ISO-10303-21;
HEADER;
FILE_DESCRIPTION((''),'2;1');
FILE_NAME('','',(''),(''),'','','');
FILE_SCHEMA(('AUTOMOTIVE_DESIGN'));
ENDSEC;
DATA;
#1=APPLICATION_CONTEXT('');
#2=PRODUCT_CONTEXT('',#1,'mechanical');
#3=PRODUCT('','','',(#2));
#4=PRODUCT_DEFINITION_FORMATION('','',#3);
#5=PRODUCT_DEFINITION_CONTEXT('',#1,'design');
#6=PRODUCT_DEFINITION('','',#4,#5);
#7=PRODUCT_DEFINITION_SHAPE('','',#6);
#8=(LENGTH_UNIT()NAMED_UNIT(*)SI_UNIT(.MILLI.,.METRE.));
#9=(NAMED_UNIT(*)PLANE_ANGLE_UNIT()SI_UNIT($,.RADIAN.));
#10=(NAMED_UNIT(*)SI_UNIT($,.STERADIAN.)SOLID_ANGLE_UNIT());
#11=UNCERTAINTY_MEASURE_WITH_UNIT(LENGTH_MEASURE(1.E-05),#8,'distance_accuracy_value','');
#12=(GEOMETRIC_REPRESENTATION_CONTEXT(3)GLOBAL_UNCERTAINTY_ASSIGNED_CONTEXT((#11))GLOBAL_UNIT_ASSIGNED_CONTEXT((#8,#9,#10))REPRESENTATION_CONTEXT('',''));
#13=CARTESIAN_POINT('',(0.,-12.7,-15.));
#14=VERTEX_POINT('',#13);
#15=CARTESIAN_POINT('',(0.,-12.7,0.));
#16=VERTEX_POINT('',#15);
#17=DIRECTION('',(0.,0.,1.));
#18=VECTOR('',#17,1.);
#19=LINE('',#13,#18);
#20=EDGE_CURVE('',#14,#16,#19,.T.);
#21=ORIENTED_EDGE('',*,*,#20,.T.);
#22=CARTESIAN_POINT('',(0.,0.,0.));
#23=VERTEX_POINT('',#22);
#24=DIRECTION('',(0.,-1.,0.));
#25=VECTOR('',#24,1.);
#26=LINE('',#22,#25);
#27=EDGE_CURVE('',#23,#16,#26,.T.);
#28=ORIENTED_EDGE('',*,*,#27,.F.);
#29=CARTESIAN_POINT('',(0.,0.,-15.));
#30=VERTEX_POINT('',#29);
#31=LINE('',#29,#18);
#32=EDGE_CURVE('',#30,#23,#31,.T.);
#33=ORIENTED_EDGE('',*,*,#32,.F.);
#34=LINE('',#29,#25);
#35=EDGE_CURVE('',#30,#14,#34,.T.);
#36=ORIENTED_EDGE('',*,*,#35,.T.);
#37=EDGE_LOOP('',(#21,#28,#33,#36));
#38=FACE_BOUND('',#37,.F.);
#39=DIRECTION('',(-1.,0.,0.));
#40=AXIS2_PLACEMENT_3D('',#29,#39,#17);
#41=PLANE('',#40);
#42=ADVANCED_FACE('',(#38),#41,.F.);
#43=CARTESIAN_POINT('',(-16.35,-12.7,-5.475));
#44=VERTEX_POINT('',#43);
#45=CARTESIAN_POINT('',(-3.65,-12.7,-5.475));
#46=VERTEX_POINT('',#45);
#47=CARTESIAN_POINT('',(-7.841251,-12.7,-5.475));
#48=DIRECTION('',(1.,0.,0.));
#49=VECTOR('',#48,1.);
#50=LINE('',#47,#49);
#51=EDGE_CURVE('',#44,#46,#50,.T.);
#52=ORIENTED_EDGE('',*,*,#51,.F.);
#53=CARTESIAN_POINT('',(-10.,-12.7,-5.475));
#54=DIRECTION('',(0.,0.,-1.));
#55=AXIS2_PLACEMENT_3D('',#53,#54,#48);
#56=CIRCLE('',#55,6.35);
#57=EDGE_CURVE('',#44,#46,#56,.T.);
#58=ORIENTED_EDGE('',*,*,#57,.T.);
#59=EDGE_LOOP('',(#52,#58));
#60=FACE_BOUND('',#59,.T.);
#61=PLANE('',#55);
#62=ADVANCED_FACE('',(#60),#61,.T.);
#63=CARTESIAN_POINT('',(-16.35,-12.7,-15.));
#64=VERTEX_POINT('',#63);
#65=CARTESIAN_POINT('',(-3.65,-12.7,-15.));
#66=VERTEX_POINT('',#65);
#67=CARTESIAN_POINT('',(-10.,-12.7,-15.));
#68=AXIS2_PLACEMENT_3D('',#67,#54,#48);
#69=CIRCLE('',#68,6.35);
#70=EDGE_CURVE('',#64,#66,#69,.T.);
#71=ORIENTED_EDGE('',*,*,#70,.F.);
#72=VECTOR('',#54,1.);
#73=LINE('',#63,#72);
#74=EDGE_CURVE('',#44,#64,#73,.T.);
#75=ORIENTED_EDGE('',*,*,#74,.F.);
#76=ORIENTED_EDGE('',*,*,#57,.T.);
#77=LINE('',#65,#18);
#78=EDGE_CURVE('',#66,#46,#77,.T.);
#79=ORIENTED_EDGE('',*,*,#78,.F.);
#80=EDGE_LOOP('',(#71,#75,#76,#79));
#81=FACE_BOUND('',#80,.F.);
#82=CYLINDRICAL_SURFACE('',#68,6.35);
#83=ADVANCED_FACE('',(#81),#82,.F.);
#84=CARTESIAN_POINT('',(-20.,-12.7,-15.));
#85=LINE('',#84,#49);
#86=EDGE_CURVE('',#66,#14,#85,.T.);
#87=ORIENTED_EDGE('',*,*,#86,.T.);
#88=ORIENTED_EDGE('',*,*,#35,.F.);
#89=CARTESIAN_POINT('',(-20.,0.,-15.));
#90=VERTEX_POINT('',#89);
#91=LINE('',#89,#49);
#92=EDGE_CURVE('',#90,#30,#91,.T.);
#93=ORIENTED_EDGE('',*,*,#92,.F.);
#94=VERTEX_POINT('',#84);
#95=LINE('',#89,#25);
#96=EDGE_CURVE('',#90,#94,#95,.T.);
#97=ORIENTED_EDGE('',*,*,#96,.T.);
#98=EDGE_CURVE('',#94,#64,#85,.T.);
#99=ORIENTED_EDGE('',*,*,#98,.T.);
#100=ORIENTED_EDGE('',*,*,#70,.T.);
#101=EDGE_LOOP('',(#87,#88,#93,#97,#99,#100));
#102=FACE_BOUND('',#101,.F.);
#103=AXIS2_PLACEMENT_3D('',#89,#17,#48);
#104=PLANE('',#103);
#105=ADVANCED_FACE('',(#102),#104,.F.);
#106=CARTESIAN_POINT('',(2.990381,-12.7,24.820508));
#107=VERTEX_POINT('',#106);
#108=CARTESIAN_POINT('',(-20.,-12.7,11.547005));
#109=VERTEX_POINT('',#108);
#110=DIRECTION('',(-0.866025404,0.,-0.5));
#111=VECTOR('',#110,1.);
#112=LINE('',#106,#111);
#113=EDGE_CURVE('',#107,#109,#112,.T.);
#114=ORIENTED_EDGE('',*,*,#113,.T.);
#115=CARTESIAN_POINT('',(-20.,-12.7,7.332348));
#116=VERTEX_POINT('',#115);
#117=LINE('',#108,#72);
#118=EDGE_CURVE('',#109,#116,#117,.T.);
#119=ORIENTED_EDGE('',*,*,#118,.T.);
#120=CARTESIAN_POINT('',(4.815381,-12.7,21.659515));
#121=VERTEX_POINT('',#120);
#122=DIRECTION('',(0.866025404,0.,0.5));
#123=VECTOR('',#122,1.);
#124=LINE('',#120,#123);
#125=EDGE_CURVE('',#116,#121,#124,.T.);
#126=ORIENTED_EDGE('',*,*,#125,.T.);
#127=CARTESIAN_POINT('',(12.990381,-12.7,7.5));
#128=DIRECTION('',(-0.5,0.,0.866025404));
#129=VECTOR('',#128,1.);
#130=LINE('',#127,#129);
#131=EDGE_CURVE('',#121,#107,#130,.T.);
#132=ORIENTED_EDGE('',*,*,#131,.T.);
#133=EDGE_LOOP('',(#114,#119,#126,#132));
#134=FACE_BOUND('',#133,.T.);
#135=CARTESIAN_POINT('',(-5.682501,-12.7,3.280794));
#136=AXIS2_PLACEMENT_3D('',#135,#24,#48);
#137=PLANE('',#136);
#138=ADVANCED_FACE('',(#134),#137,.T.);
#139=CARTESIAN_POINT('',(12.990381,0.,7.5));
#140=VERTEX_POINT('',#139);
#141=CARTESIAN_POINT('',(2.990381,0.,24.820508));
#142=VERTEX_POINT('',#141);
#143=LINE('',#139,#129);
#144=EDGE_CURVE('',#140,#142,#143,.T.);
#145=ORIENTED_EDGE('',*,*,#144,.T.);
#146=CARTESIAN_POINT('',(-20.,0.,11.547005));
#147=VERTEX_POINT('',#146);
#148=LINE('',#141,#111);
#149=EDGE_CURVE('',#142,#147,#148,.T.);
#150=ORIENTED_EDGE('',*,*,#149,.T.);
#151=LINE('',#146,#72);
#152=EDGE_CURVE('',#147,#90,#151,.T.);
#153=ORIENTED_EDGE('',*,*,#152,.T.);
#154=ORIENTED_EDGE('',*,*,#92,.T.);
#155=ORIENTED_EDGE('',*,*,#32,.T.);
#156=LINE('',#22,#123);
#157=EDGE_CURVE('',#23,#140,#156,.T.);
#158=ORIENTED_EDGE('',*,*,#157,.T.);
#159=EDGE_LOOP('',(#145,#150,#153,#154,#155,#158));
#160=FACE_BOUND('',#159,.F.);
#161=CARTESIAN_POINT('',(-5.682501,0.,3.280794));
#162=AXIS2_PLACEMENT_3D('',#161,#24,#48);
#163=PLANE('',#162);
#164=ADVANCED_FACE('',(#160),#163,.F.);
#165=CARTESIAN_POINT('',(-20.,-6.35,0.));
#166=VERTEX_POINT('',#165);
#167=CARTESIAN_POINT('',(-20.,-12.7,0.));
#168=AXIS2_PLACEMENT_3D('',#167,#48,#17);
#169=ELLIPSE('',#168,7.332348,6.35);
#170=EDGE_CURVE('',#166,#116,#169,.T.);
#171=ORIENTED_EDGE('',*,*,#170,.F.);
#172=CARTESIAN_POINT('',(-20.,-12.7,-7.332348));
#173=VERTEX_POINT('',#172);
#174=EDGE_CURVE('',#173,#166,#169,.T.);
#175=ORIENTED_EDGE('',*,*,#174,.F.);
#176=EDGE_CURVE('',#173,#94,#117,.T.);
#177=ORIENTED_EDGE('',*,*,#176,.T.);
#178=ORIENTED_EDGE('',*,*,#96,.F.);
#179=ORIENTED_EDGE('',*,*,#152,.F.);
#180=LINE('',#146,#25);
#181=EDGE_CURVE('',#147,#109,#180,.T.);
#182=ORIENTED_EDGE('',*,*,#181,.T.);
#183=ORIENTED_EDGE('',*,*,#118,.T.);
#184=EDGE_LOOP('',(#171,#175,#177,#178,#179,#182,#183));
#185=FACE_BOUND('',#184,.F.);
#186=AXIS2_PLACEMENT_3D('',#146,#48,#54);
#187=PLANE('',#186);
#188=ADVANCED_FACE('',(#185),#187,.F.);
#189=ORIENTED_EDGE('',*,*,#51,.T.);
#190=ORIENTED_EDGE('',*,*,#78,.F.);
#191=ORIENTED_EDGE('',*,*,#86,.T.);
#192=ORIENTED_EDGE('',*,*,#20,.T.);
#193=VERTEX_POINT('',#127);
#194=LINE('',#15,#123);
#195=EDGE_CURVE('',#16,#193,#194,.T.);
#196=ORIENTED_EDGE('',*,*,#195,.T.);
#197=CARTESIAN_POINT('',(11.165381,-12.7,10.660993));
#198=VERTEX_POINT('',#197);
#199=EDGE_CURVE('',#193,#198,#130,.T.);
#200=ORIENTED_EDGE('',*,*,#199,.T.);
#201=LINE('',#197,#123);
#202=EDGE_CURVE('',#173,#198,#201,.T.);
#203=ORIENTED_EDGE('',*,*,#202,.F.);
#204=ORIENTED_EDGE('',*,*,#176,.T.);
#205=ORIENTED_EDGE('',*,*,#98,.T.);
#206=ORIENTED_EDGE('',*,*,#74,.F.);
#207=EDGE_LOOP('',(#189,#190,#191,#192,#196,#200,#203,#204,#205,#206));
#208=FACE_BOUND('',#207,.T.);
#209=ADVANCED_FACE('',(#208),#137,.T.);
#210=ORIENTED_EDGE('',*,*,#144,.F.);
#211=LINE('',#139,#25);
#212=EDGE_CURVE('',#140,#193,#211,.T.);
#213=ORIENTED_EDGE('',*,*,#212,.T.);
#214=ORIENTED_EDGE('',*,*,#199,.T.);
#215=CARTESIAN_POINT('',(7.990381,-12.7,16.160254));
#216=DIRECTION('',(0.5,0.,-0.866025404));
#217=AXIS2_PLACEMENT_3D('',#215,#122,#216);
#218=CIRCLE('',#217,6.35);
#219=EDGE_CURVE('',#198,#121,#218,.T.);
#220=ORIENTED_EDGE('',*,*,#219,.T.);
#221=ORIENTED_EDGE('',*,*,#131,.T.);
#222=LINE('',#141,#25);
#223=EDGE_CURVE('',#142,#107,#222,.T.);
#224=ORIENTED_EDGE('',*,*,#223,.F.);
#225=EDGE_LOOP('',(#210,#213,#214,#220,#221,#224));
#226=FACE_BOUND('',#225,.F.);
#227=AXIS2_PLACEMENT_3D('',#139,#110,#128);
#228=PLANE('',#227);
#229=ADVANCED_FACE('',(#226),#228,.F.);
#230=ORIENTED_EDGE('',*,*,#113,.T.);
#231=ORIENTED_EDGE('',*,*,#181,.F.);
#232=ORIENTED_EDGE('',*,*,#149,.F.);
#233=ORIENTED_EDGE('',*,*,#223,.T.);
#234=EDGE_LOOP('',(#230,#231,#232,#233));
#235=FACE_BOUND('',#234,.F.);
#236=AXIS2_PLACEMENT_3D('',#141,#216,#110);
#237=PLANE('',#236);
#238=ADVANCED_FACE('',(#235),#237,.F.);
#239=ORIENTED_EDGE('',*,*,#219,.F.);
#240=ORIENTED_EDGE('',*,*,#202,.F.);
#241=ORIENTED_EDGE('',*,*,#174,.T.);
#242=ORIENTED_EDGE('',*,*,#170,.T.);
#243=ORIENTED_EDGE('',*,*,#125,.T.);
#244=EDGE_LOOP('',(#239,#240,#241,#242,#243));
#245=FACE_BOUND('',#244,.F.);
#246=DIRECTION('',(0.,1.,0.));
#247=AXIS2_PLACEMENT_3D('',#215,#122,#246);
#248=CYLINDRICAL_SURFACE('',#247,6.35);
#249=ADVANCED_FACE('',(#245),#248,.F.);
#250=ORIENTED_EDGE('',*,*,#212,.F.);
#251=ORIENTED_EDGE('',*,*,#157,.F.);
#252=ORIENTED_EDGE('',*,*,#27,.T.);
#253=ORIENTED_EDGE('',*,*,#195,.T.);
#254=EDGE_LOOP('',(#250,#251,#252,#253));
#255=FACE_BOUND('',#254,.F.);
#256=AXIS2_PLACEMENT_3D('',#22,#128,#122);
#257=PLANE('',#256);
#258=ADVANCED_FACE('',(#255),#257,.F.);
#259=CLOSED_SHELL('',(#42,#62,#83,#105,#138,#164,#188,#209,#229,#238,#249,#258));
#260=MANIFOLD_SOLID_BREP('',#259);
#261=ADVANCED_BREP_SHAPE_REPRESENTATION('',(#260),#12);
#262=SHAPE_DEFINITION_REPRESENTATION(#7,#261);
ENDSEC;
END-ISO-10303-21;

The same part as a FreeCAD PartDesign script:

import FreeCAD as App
import Part
import Sketcher
from FreeCAD import Vector
Q = App.Units.Quantity


def add_polygon(sketch, points):
    """Adds a closed chain of lines whose ends are joined by coincident constraints."""
    first, n = sketch.GeometryCount, len(points)
    for a, b in zip(points, points[1:] + points[:1]):
        sketch.addGeometry(Part.LineSegment(App.Vector(*a, 0), App.Vector(*b, 0)), False)
    for i in range(n):
        sketch.addConstraint(Sketcher.Constraint("Coincident", first + i, 2, first + (i + 1) % n, 1))

doc = App.newDocument("Part")
body = doc.addObject("PartDesign::Body", "Body")

sketch1 = body.newObject("Sketcher::SketchObject", "Sketch")
sketch1.AttachmentSupport = (doc.getObject("XZ_Plane"), [""])
sketch1.MapMode = "FlatFace"
add_polygon(sketch1, [(-20, 12), (-20, -15), (0, -15), (0, 0), (13, 8), (3, 25)])
sketch1.addConstraint([
    Sketcher.Constraint("Vertical", 0),
    Sketcher.Constraint("Horizontal", 1),
    Sketcher.Constraint("Vertical", 2),
    Sketcher.Constraint("Coincident", 2, 2, -1, 1),
    Sketcher.Constraint("Perpendicular", 3, 4),
    Sketcher.Constraint("Perpendicular", 4, 5),
    Sketcher.Constraint("DistanceX", 1, 1, 1, 2, 20.0),
    Sketcher.Constraint("DistanceY", 2, 1, 2, 2, 15.0),
    Sketcher.Constraint("Angle", 3, Q("30 deg")),
    Sketcher.Constraint("Distance", 3, 15.0),
    Sketcher.Constraint("Distance", 4, 20.0),
])
pad1 = body.newObject("PartDesign::Pad", "Pad")
pad1.Profile = sketch1
pad1.Length = 12.7

sketch2 = body.newObject("Sketcher::SketchObject", "Sketch001")
sketch2.Placement = App.Placement(Vector(12.990381, 0, 7.5), App.Rotation(Vector(0, 1, 0), Vector(-0.5, 0, 0.866025404), Vector(0.866025404, 0, 0.5), "ZXY"))
sketch2.addGeometry(Part.Circle(Vector(-13, 10, 0), Vector(0, 0, 1), 6), False)
sketch2.addConstraint([
    Sketcher.Constraint("Diameter", 0, 12.7),
    Sketcher.Constraint("DistanceY", -1, 1, 0, 3, 10.0),
    Sketcher.Constraint("DistanceX", 0, 3, -1, 1, 12.7),
])
pocket1 = body.newObject("PartDesign::Pocket", "Pocket")
pocket1.Profile = sketch2
pocket1.Type = "ThroughAll"

sketch3 = body.newObject("Sketcher::SketchObject", "Sketch002")
sketch3.AttachmentSupport = (doc.getObject("XY_Plane"), [""])
sketch3.MapMode = "FlatFace"
sketch3.AttachmentOffset = App.Placement(Vector(0, 0, -15), App.Rotation())
sketch3.addGeometry(Part.Circle(Vector(-10, -13, 0), Vector(0, 0, 1), 6), False)
sketch3.addConstraint([
    Sketcher.Constraint("Diameter", 0, 12.7),
    Sketcher.Constraint("DistanceX", 0, 3, -1, 1, 10.0),
    Sketcher.Constraint("DistanceY", 0, 3, -1, 1, 12.7),
])
pocket2 = body.newObject("PartDesign::Pocket", "Pocket001")
pocket2.Profile = sketch3
pocket2.Length = 9.525
pocket2.Reversed = True

doc.recompute()
